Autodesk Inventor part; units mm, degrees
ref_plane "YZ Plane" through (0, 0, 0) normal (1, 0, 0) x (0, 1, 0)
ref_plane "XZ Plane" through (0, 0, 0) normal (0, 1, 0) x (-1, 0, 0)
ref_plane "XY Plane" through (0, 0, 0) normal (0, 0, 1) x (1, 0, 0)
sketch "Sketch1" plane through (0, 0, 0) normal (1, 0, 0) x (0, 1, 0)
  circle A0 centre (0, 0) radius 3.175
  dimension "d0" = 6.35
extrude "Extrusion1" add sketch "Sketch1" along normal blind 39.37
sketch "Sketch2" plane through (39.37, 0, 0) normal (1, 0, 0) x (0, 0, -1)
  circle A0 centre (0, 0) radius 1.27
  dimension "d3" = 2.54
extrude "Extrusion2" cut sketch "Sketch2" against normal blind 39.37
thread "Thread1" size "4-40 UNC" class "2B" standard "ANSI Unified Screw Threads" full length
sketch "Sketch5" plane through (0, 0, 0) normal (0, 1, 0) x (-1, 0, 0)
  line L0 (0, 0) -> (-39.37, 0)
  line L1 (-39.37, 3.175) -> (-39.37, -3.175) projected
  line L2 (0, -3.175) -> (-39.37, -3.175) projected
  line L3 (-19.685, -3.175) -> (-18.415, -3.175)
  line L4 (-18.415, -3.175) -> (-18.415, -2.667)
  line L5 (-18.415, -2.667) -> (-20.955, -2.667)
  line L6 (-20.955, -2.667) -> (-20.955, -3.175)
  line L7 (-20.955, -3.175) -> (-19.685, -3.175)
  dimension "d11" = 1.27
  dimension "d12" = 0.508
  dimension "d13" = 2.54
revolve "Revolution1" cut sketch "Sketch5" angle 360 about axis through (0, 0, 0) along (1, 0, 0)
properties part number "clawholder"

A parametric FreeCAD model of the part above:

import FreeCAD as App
import Part
import Sketcher

V = App.Vector
Q = App.Units.Quantity

doc = App.newDocument("Part")
body = doc.addObject("PartDesign::Body", "Body")

# Sketch on YZ plane
sketch1 = doc.addObject("Sketcher::SketchObject", "Sketch")
body.addObject(sketch1)
sketch1.AttachmentSupport = (doc.YZ_Plane, [""])
sketch1.MapMode = "FlatFace"
sketch1.addGeometry(Part.Circle(V(0, 0, 0), V(0, 0, 1), 3.2), False)
sketch1.addConstraint([
    Sketcher.Constraint("Coincident", 0, 3, -1, 1),
    Sketcher.Constraint("Diameter", 0, Q("0.25 in")),
])
pad1 = doc.addObject("PartDesign::Pad", "Pad")
body.addObject(pad1)
pad1.Profile = sketch1
pad1.Length = Q("1.55 in")

# Sketch on YZ plane
sketch2 = doc.addObject("Sketcher::SketchObject", "Sketch001")
body.addObject(sketch2)
sketch2.AttachmentSupport = (doc.YZ_Plane, [""])
sketch2.MapMode = "FlatFace"
sketch2.AttachmentOffset = App.Placement(V(0, 0, 1.55 * 25.4), App.Rotation())
sketch2.addGeometry(Part.Circle(V(0, 0, 0), V(0, 0, 1), 1.3), False)
sketch2.addConstraint([
    Sketcher.Constraint("Coincident", 0, 3, -1, 1),
    Sketcher.Constraint("Diameter", 0, Q("0.1 in")),
])
pocket1 = doc.addObject("PartDesign::Pocket", "Pocket")
body.addObject(pocket1)
pocket1.Profile = sketch2
pocket1.Length = Q("1.55 in")

# Sketch on XZ plane
sketch3 = doc.addObject("Sketcher::SketchObject", "Sketch002")
body.addObject(sketch3)
sketch3.AttachmentSupport = (doc.XZ_Plane, [""])
sketch3.MapMode = "FlatFace"
sketch3.addGeometry([
    Part.LineSegment(V(21, -3.2, 0), V(18.4, -3.2, 0)),
    Part.LineSegment(V(18.4, -3.2, 0), V(18.4, -2.7, 0)),
    Part.LineSegment(V(18.4, -2.7, 0), V(21, -2.7, 0)),
    Part.LineSegment(V(21, -2.7, 0), V(21, -3.2, 0)),
], False)
sketch3.addConstraint([
    Sketcher.Constraint("Coincident", 0, 2, 1, 1),
    Sketcher.Constraint("Coincident", 1, 2, 2, 1),
    Sketcher.Constraint("Coincident", 2, 2, 3, 1),
    Sketcher.Constraint("Coincident", 3, 2, 0, 1),
    Sketcher.Constraint("Horizontal", 0),
    Sketcher.Constraint("Vertical", 1),
    Sketcher.Constraint("Horizontal", 2),
    Sketcher.Constraint("Vertical", 3),
    Sketcher.Constraint("DistanceX", 0, 2, 0, 1, Q("0.1 in")),
    Sketcher.Constraint("DistanceY", 1, 1, 1, 2, Q("0.02 in")),
    Sketcher.Constraint("DistanceX", -1, 1, 0, 2, Q("0.725 in")),
    Sketcher.Constraint("DistanceY", 0, 2, -1, 1, Q("0.125 in")),
])
groove = doc.addObject("PartDesign::Groove", "Groove")
body.addObject(groove)
groove.Profile = sketch3
groove.ReferenceAxis = (sketch3, ["H_Axis"])
groove.Angle = 360

doc.recompute()
